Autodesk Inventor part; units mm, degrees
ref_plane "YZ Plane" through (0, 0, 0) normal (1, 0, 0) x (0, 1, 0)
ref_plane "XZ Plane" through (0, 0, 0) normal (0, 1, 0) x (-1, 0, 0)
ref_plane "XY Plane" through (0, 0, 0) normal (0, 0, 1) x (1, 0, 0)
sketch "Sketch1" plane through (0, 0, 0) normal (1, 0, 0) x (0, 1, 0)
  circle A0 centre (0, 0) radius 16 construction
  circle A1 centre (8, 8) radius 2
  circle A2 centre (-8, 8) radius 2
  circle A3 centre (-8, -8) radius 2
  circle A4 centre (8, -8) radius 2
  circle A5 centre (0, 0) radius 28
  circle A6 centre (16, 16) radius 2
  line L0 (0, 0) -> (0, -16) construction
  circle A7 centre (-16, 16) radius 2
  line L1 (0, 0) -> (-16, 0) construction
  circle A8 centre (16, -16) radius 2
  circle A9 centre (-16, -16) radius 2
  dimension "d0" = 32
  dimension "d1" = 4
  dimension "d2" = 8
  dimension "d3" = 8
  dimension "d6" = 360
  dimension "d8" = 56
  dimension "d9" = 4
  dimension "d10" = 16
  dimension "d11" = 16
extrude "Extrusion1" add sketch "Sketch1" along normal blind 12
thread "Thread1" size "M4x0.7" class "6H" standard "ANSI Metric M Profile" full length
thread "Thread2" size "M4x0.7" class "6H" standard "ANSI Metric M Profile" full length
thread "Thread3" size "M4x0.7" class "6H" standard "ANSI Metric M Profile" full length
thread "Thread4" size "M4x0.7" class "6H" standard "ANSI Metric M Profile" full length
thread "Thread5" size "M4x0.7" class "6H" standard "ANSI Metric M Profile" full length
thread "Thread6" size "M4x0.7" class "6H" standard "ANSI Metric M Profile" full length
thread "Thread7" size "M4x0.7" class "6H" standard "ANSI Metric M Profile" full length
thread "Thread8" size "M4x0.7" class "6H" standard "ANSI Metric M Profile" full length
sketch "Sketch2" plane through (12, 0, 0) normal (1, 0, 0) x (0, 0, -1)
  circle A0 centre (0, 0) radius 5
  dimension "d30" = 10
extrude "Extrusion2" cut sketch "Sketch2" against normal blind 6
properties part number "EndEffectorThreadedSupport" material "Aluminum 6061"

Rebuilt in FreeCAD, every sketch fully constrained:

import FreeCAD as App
import Part
import Sketcher
from FreeCAD import Vector

doc = App.newDocument("Part")
body = doc.addObject("PartDesign::Body", "Body")

# Sketch on YZ plane
sketch1 = body.newObject("Sketcher::SketchObject", "Sketch")
sketch1.AttachmentSupport = (doc.getObject("YZ_Plane"), [""])
sketch1.MapMode = "FlatFace"
sketch1.addGeometry(Part.Circle(Vector(0, 0, 0), Vector(0, 0, 1), 28), False)
sketch1.addGeometry(Part.Circle(Vector(-16, -16, 0), Vector(0, 0, 1), 2), False)
sketch1.addGeometry(Part.Circle(Vector(-8, -8, 0), Vector(0, 0, 1), 2), False)
sketch1.addGeometry(Part.Circle(Vector(16, -16, 0), Vector(0, 0, 1), 2), False)
sketch1.addGeometry(Part.Circle(Vector(8, -8, 0), Vector(0, 0, 1), 2), False)
sketch1.addGeometry(Part.Circle(Vector(-8, 8, 0), Vector(0, 0, 1), 2), False)
sketch1.addGeometry(Part.Circle(Vector(-16, 16, 0), Vector(0, 0, 1), 2), False)
sketch1.addGeometry(Part.Circle(Vector(8, 8, 0), Vector(0, 0, 1), 2), False)
sketch1.addGeometry(Part.Circle(Vector(16, 16, 0), Vector(0, 0, 1), 2), False)
sketch1.addConstraint(Sketcher.Constraint("Coincident", 0, 3, -1, 1))
sketch1.addConstraint(Sketcher.Constraint("Equal", 1, 2))
sketch1.addConstraint(Sketcher.Constraint("Equal", 2, 3))
sketch1.addConstraint(Sketcher.Constraint("Equal", 3, 4))
sketch1.addConstraint(Sketcher.Constraint("Equal", 4, 5))
sketch1.addConstraint(Sketcher.Constraint("Equal", 5, 6))
sketch1.addConstraint(Sketcher.Constraint("Equal", 6, 7))
sketch1.addConstraint(Sketcher.Constraint("Equal", 7, 8))
sketch1.addConstraint(Sketcher.Constraint("Symmetric", 4, 3, 5, 3, -1, 1))
sketch1.addConstraint(Sketcher.Constraint("Symmetric", 3, 3, 6, 3, -1, 1))
sketch1.addConstraint(Sketcher.Constraint("Symmetric", 2, 3, 7, 3, -1, 1))
sketch1.addConstraint(Sketcher.Constraint("Symmetric", 1, 3, 8, 3, -1, 1))
sketch1.addConstraint(Sketcher.Constraint("Symmetric", 1, 3, 3, 3, -2))
sketch1.addConstraint(Sketcher.Constraint("Symmetric", 2, 3, 4, 3, -2))
sketch1.addConstraint(Sketcher.Constraint("Diameter", 0, 56.0))
sketch1.addConstraint(Sketcher.Constraint("Diameter", 1, 4.0))
sketch1.addConstraint(Sketcher.Constraint("DistanceX", 1, 3, -1, 1, 16.0))
sketch1.addConstraint(Sketcher.Constraint("DistanceY", 1, 3, -1, 1, 16.0))
sketch1.addConstraint(Sketcher.Constraint("DistanceX", 2, 3, -1, 1, 8.0))
sketch1.addConstraint(Sketcher.Constraint("DistanceY", 2, 3, -1, 1, 8.0))
pad1 = body.newObject("PartDesign::Pad", "Pad")
pad1.Profile = sketch1
pad1.Length = 12

# Sketch on YZ plane
sketch2 = body.newObject("Sketcher::SketchObject", "Sketch001")
sketch2.AttachmentSupport = (doc.getObject("YZ_Plane"), [""])
sketch2.MapMode = "FlatFace"
sketch2.AttachmentOffset = App.Placement(Vector(0, 0, 12), App.Rotation())
sketch2.addGeometry(Part.Circle(Vector(0, 0, 0), Vector(0, 0, 1), 5), False)
sketch2.addConstraint(Sketcher.Constraint("Coincident", 0, 3, -1, 1))
sketch2.addConstraint(Sketcher.Constraint("Diameter", 0, 10.0))
pocket1 = body.newObject("PartDesign::Pocket", "Pocket")
pocket1.Profile = sketch2
pocket1.Length = 6

doc.recompute()
